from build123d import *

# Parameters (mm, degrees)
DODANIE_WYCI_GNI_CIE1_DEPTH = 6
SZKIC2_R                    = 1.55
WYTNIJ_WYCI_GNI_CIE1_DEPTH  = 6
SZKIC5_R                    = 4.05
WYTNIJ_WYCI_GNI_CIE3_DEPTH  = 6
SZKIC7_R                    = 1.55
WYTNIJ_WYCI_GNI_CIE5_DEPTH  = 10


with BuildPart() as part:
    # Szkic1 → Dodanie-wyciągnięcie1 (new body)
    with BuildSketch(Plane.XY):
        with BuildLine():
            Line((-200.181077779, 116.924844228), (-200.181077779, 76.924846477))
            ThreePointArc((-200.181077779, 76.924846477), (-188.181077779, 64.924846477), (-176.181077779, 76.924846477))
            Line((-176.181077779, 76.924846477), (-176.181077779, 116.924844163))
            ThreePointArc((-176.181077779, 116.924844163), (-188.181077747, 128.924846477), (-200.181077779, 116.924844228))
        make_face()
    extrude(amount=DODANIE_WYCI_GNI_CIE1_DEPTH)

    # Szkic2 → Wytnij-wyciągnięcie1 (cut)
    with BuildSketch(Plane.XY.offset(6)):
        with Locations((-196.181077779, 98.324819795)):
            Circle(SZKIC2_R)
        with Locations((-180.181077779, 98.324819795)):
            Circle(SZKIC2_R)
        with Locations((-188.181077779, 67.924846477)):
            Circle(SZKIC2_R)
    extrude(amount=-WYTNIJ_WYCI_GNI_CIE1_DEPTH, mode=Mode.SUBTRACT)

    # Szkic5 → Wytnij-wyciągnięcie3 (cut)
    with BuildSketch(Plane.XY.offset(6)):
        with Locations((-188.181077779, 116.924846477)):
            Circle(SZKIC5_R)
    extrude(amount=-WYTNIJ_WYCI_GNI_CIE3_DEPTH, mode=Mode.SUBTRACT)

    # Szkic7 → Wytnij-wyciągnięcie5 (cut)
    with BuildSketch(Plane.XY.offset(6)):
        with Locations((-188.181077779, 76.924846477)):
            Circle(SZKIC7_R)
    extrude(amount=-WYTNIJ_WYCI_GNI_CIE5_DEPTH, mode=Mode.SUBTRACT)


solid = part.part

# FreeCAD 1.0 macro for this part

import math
import FreeCAD as App
import Part
import Sketcher

doc = App.newDocument("Part")
body = doc.addObject("PartDesign::Body", "Body")

# Sketch on XY plane
sketch1 = body.newObject("Sketcher::SketchObject", "Sketch")
sketch1.AttachmentSupport = (doc.getObject("XY_Plane"), [""])
sketch1.MapMode = "FlatFace"
sketch1.addGeometry(Part.LineSegment(App.Vector(-200, 117, 0), App.Vector(-200, 77, 0)), False)
sketch1.addGeometry(Part.ArcOfCircle(Part.Circle(App.Vector(-188, 77, 0), App.Vector(0, 0, 1), 12), math.radians(180), math.radians(360)), False)
sketch1.addGeometry(Part.LineSegment(App.Vector(-176, 77, 0), App.Vector(-176, 117, 0)), False)
sketch1.addGeometry(Part.ArcOfCircle(Part.Circle(App.Vector(-188, 117, 0), App.Vector(0, 0, 1), 12), math.radians(0), math.radians(180)), False)
sketch1.addConstraint(Sketcher.Constraint("Tangent", 0, 2, 1, 1))
sketch1.addConstraint(Sketcher.Constraint("Tangent", 1, 2, 2, 1))
sketch1.addConstraint(Sketcher.Constraint("Tangent", 2, 2, 3, 1))
sketch1.addConstraint(Sketcher.Constraint("Tangent", 3, 2, 0, 1))
sketch1.addConstraint(Sketcher.Constraint("Vertical", 0))
sketch1.addConstraint(Sketcher.Constraint("Vertical", 2))
sketch1.addConstraint(Sketcher.Constraint("Radius", 1, 12.0))
sketch1.addConstraint(Sketcher.Constraint("DistanceY", 1, 3, 3, 3, 40.0))
sketch1.addConstraint(Sketcher.Constraint("DistanceX", 1, 3, -1, 1, 188.181078))
sketch1.addConstraint(Sketcher.Constraint("DistanceY", -1, 1, 1, 3, 76.924846))
pad1 = body.newObject("PartDesign::Pad", "Pad")
pad1.Profile = sketch1
pad1.Length = 6

# Sketch on XY plane
sketch2 = body.newObject("Sketcher::SketchObject", "Sketch001")
sketch2.AttachmentSupport = (doc.getObject("XY_Plane"), [""])
sketch2.MapMode = "FlatFace"
sketch2.AttachmentOffset = App.Placement(App.Vector(0, 0, 6), App.Rotation())
sketch2.addGeometry(Part.Circle(App.Vector(-196.2, 98.3, 0), App.Vector(0, 0, 1), 1.6), False)
sketch2.addGeometry(Part.Circle(App.Vector(-180.2, 98.3, 0), App.Vector(0, 0, 1), 1.6), False)
sketch2.addGeometry(Part.Circle(App.Vector(-188.2, 67.9, 0), App.Vector(0, 0, 1), 1.6), False)
sketch2.addConstraint(Sketcher.Constraint("Equal", 0, 1))
sketch2.addConstraint(Sketcher.Constraint("Equal", 1, 2))
sketch2.addConstraint(Sketcher.Constraint("Horizontal", 0, 3, 1, 3))
sketch2.addConstraint(Sketcher.Constraint("Diameter", 0, 3.1))
sketch2.addConstraint(Sketcher.Constraint("DistanceX", 0, 3, 1, 3, 16.0))
sketch2.addConstraint(Sketcher.Constraint("DistanceX", 0, 3, 2, 3, 8.0))
sketch2.addConstraint(Sketcher.Constraint("DistanceY", -1, 1, 0, 3, 98.32482))
sketch2.addConstraint(Sketcher.Constraint("DistanceX", 0, 3, -1, 1, 196.181078))
sketch2.addConstraint(Sketcher.Constraint("DistanceY", -1, 1, 2, 3, 67.924846))
pocket1 = body.newObject("PartDesign::Pocket", "Pocket")
pocket1.Profile = sketch2
pocket1.Length = 6

# Sketch on XY plane
sketch3 = body.newObject("Sketcher::SketchObject", "Sketch002")
sketch3.AttachmentSupport = (doc.getObject("XY_Plane"), [""])
sketch3.MapMode = "FlatFace"
sketch3.AttachmentOffset = App.Placement(App.Vector(0, 0, 6), App.Rotation())
sketch3.addGeometry(Part.Circle(App.Vector(-188.2, 116.9, 0), App.Vector(0, 0, 1), 4), False)
sketch3.addConstraint(Sketcher.Constraint("Diameter", 0, 8.1))
sketch3.addConstraint(Sketcher.Constraint("DistanceX", 0, 3, -1, 1, 188.181078))
sketch3.addConstraint(Sketcher.Constraint("DistanceY", -1, 1, 0, 3, 116.924846))
pocket2 = body.newObject("PartDesign::Pocket", "Pocket001")
pocket2.Profile = sketch3
pocket2.Length = 6

# Sketch on XY plane
sketch4 = body.newObject("Sketcher::SketchObject", "Sketch003")
sketch4.AttachmentSupport = (doc.getObject("XY_Plane"), [""])
sketch4.MapMode = "FlatFace"
sketch4.AttachmentOffset = App.Placement(App.Vector(0, 0, 6), App.Rotation())
sketch4.addGeometry(Part.Circle(App.Vector(-188.2, 76.9, 0), App.Vector(0, 0, 1), 1.6), False)
sketch4.addConstraint(Sketcher.Constraint("Diameter", 0, 3.1))
sketch4.addConstraint(Sketcher.Constraint("DistanceX", 0, 3, -1, 1, 188.181078))
sketch4.addConstraint(Sketcher.Constraint("DistanceY", -1, 1, 0, 3, 76.924846))
pocket3 = body.newObject("PartDesign::Pocket", "Pocket002")
pocket3.Profile = sketch4
pocket3.Length = 10

doc.recompute()
